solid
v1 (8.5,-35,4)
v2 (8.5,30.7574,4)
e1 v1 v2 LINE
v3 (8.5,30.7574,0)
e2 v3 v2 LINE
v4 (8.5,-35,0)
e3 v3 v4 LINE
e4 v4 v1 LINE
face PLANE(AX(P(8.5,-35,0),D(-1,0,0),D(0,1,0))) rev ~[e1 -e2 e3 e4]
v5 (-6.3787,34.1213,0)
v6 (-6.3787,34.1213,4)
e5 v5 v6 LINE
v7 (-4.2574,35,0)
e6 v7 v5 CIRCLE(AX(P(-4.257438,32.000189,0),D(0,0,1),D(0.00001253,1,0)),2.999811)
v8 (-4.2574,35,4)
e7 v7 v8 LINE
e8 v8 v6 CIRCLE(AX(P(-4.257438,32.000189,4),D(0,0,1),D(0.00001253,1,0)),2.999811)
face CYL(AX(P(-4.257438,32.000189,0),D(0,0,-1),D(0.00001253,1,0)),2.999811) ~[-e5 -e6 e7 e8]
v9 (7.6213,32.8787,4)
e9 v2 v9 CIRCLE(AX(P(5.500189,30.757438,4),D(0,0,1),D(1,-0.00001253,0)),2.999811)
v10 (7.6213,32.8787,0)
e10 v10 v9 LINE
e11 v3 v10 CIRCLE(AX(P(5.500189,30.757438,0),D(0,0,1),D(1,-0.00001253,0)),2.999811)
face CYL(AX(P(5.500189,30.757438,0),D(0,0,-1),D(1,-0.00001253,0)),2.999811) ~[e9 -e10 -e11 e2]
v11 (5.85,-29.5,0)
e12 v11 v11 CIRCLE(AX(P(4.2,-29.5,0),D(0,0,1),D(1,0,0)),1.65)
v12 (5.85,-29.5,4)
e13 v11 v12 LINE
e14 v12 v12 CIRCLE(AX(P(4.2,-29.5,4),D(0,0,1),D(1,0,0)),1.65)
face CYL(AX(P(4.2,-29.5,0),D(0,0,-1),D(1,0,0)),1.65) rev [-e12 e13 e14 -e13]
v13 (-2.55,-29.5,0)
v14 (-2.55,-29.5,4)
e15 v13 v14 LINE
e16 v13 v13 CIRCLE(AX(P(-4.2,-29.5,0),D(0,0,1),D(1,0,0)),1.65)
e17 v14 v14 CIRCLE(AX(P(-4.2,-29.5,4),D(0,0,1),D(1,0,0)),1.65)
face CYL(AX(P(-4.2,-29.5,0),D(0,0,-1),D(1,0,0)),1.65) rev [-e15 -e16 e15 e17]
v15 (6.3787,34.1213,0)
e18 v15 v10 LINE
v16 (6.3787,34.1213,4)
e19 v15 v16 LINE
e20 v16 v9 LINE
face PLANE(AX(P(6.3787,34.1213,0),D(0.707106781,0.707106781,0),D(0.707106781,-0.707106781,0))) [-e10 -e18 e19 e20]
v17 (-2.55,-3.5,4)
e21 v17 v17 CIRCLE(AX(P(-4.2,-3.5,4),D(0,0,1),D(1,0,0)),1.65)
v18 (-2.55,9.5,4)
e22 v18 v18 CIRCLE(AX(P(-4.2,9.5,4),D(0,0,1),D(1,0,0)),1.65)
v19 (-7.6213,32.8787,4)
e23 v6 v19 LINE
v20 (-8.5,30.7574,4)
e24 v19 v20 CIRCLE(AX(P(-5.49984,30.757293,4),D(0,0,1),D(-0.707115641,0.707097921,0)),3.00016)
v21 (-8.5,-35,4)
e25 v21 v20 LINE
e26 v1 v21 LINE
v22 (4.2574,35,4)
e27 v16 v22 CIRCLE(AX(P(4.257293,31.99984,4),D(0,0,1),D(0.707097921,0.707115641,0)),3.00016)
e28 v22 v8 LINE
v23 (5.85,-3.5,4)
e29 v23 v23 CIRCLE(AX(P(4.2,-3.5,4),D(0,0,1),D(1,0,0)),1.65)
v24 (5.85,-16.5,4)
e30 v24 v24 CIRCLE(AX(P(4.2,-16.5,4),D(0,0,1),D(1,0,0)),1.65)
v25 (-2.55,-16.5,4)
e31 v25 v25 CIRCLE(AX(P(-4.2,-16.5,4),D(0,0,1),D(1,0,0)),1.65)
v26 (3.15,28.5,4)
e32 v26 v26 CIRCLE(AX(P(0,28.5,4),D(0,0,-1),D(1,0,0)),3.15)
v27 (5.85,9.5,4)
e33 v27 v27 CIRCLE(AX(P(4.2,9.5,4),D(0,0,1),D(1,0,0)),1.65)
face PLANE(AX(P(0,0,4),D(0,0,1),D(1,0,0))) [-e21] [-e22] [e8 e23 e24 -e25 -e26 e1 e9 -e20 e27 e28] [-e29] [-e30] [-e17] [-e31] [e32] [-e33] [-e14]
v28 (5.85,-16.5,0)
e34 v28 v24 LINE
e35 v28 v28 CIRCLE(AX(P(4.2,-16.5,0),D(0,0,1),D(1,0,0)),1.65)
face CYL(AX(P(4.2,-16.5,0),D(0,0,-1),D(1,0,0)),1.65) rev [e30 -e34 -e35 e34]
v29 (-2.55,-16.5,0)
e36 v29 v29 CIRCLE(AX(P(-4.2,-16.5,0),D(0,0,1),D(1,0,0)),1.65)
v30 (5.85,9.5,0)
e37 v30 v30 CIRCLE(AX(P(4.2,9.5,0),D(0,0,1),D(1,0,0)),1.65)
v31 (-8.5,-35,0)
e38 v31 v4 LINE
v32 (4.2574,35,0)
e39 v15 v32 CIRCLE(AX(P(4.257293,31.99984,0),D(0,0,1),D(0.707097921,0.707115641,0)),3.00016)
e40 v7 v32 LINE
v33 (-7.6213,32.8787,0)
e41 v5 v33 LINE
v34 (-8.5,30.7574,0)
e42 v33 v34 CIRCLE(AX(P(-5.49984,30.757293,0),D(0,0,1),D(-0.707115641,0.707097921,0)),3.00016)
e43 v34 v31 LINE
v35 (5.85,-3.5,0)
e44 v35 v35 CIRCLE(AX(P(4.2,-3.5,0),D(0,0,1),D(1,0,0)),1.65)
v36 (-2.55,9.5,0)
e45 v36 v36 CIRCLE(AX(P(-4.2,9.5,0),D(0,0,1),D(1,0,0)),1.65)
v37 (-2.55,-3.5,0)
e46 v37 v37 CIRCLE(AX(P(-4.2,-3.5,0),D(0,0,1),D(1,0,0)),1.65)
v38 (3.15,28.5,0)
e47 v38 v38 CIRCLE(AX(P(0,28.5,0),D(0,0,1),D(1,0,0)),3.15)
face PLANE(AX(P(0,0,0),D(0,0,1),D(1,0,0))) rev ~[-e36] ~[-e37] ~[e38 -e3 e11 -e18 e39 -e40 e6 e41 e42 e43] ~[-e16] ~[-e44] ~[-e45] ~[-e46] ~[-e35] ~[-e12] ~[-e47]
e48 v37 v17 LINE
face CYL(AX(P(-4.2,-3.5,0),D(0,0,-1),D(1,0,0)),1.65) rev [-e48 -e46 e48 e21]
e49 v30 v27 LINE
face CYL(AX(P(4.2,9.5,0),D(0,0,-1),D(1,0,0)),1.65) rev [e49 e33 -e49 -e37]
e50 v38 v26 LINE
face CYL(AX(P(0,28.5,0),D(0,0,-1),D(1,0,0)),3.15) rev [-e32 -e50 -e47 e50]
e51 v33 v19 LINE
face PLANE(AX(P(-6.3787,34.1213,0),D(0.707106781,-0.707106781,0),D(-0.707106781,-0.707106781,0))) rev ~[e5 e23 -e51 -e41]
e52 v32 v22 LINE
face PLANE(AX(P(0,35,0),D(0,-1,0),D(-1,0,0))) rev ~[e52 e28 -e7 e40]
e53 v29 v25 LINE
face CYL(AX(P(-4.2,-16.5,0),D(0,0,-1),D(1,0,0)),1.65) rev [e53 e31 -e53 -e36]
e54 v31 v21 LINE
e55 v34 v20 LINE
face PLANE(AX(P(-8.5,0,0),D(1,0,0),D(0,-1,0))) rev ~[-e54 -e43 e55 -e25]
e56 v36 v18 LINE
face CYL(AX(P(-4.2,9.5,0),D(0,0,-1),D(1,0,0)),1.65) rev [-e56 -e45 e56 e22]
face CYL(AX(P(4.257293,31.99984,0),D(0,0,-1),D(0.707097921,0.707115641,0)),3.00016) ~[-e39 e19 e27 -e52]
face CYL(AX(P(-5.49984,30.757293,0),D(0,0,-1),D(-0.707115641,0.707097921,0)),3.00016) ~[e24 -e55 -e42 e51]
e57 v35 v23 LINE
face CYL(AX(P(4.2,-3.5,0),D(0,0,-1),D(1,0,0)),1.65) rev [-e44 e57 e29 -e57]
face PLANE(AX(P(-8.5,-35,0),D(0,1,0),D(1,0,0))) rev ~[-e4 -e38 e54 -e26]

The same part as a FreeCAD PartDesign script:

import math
import FreeCAD as App
import Part
import Sketcher
Q = App.Units.Quantity

doc = App.newDocument("Part")
body = doc.addObject("PartDesign::Body", "Body")

sketch1 = body.newObject("Sketcher::SketchObject", "Sketch")
sketch1.AttachmentSupport = (doc.getObject("XY_Plane"), [""])
sketch1.MapMode = "FlatFace"
sketch1.addGeometry(Part.LineSegment(App.Vector(-8.5, -35, 0), App.Vector(8.5, -35, 0)), False)
sketch1.addGeometry(Part.LineSegment(App.Vector(8.5, -35, 0), App.Vector(8.5, 30.8, 0)), False)
sketch1.addGeometry(Part.ArcOfCircle(Part.Circle(App.Vector(5.5, 30.8, 0), App.Vector(0, 0, 1), 3), math.radians(0), math.radians(45)), False)
sketch1.addGeometry(Part.LineSegment(App.Vector(7.6, 32.9, 0), App.Vector(6.4, 34.1, 0)), False)
sketch1.addGeometry(Part.ArcOfCircle(Part.Circle(App.Vector(4.3, 32, 0), App.Vector(0, 0, 1), 3), math.radians(45), math.radians(90)), False)
sketch1.addGeometry(Part.LineSegment(App.Vector(4.3, 35, 0), App.Vector(-4.3, 35, 0)), False)
sketch1.addGeometry(Part.ArcOfCircle(Part.Circle(App.Vector(-4.3, 32, 0), App.Vector(0, 0, 1), 3), math.radians(90), math.radians(135)), False)
sketch1.addGeometry(Part.LineSegment(App.Vector(-6.4, 34.1, 0), App.Vector(-7.6, 32.9, 0)), False)
sketch1.addGeometry(Part.ArcOfCircle(Part.Circle(App.Vector(-5.5, 30.8, 0), App.Vector(0, 0, 1), 3), math.radians(135), math.radians(180)), False)
sketch1.addGeometry(Part.LineSegment(App.Vector(-8.5, 30.8, 0), App.Vector(-8.5, -35, 0)), False)
sketch1.addGeometry(Part.Circle(App.Vector(-4.2, -29.5, 0), App.Vector(0, 0, 1), 1.6), False)
sketch1.addGeometry(Part.Circle(App.Vector(-4.2, -16.5, 0), App.Vector(0, 0, 1), 1.6), False)
sketch1.addGeometry(Part.Circle(App.Vector(-4.2, -3.5, 0), App.Vector(0, 0, 1), 1.6), False)
sketch1.addGeometry(Part.Circle(App.Vector(0, 28.5, 0), App.Vector(0, 0, 1), 3.1), False)
sketch1.addGeometry(Part.Circle(App.Vector(-4.2, 9.5, 0), App.Vector(0, 0, 1), 1.6), False)
sketch1.addGeometry(Part.Circle(App.Vector(4.2, -3.5, 0), App.Vector(0, 0, 1), 1.6), False)
sketch1.addGeometry(Part.Circle(App.Vector(4.2, -29.5, 0), App.Vector(0, 0, 1), 1.6), False)
sketch1.addGeometry(Part.Circle(App.Vector(4.2, -16.5, 0), App.Vector(0, 0, 1), 1.6), False)
sketch1.addGeometry(Part.Circle(App.Vector(4.2, 9.5, 0), App.Vector(0, 0, 1), 1.6), False)
sketch1.addConstraint(Sketcher.Constraint("Coincident", 0, 2, 1, 1))
sketch1.addConstraint(Sketcher.Constraint("Tangent", 1, 2, 2, 1))
sketch1.addConstraint(Sketcher.Constraint("Tangent", 2, 2, 3, 1))
sketch1.addConstraint(Sketcher.Constraint("Tangent", 3, 2, 4, 1))
sketch1.addConstraint(Sketcher.Constraint("Tangent", 4, 2, 5, 1))
sketch1.addConstraint(Sketcher.Constraint("Tangent", 5, 2, 6, 1))
sketch1.addConstraint(Sketcher.Constraint("Tangent", 6, 2, 7, 1))
sketch1.addConstraint(Sketcher.Constraint("Tangent", 7, 2, 8, 1))
sketch1.addConstraint(Sketcher.Constraint("Tangent", 8, 2, 9, 1))
sketch1.addConstraint(Sketcher.Constraint("Coincident", 9, 2, 0, 1))
sketch1.addConstraint(Sketcher.Constraint("Horizontal", 0))
sketch1.addConstraint(Sketcher.Constraint("Vertical", 1))
sketch1.addConstraint(Sketcher.Constraint("Horizontal", 5))
sketch1.addConstraint(Sketcher.Constraint("Vertical", 9))
sketch1.addConstraint(Sketcher.Constraint("Equal", 2, 4))
sketch1.addConstraint(Sketcher.Constraint("Equal", 4, 6))
sketch1.addConstraint(Sketcher.Constraint("Equal", 6, 8))
sketch1.addConstraint(Sketcher.Constraint("Equal", 10, 11))
sketch1.addConstraint(Sketcher.Constraint("Equal", 11, 12))
sketch1.addConstraint(Sketcher.Constraint("Equal", 12, 14))
sketch1.addConstraint(Sketcher.Constraint("Equal", 14, 15))
sketch1.addConstraint(Sketcher.Constraint("Equal", 15, 16))
sketch1.addConstraint(Sketcher.Constraint("Equal", 16, 17))
sketch1.addConstraint(Sketcher.Constraint("Equal", 17, 18))
sketch1.addConstraint(Sketcher.Constraint("Symmetric", 2, 3, 8, 3, -2))
sketch1.addConstraint(Sketcher.Constraint("Symmetric", 12, 3, 15, 3, -2))
sketch1.addConstraint(Sketcher.Constraint("Symmetric", 10, 3, 16, 3, -2))
sketch1.addConstraint(Sketcher.Constraint("Symmetric", 11, 3, 17, 3, -2))
sketch1.addConstraint(Sketcher.Constraint("Symmetric", 14, 3, 18, 3, -2))
sketch1.addConstraint(Sketcher.Constraint("PointOnObject", 13, 3, -2))
sketch1.addConstraint(Sketcher.Constraint("Perpendicular", 3, 7))
sketch1.addConstraint(Sketcher.Constraint("Horizontal", 3, 2, 6, 2))
sketch1.addConstraint(Sketcher.Constraint("Vertical", 10, 3, 11, 3))
sketch1.addConstraint(Sketcher.Constraint("Vertical", 11, 3, 12, 3))
sketch1.addConstraint(Sketcher.Constraint("Vertical", 12, 3, 14, 3))
sketch1.addConstraint(Sketcher.Constraint("Radius", 2, Q("3 mm")))
sketch1.addConstraint(Sketcher.Constraint("Diameter", 10, Q("3.3 mm")))
sketch1.addConstraint(Sketcher.Constraint("Diameter", 13, Q("6.3 mm")))
sketch1.addConstraint(Sketcher.Constraint("DistanceX", 0, 1, 0, 2, Q("17 mm")))
sketch1.addConstraint(Sketcher.Constraint("DistanceY", 10, 3, 11, 3, Q("13 mm")))
sketch1.addConstraint(Sketcher.Constraint("DistanceY", 11, 3, 12, 3, Q("13 mm")))
sketch1.addConstraint(Sketcher.Constraint("DistanceY", 12, 3, 14, 3, Q("13 mm")))
sketch1.addConstraint(Sketcher.Constraint("DistanceX", 12, 3, 15, 3, Q("8.4 mm")))
sketch1.addConstraint(Sketcher.Constraint("DistanceY", 0, 2, 16, 3, Q("5.5 mm")))
sketch1.addConstraint(Sketcher.Constraint("DistanceY", 13, 3, 5, 2, Q("6.5 mm")))
sketch1.addConstraint(Sketcher.Constraint("DistanceY", -1, 1, 4, 3, Q("32 mm")))
sketch1.addConstraint(Sketcher.Constraint("DistanceY", 0, 2, -1, 1, Q("35 mm")))
sketch1.addConstraint(Sketcher.Constraint("DistanceX", 5, 2, 5, 1, Q("8.5148 mm")))
pad1 = body.newObject("PartDesign::Pad", "Pad")
pad1.Profile = sketch1
pad1.Length = 4

doc.recompute()
